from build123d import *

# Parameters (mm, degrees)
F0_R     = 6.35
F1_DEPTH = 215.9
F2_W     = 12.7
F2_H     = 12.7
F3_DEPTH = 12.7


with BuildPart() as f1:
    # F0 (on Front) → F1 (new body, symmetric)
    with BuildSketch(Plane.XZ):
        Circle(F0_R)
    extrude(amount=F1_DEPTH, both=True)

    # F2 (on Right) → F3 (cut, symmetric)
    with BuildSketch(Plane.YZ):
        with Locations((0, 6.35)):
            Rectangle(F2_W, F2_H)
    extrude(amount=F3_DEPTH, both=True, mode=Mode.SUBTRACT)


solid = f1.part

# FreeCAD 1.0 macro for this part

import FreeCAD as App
import Part
import Sketcher

V = App.Vector
Q = App.Units.Quantity

doc = App.newDocument("Part")
body = doc.addObject("PartDesign::Body", "Body")

# Sketch on XZ plane
sketch1 = body.newObject("Sketcher::SketchObject", "Sketch")
sketch1.AttachmentSupport = (doc.getObject("XZ_Plane"), [""])
sketch1.MapMode = "FlatFace"
sketch1.addGeometry(Part.Circle(V(0, 0, 0), V(0, 0, 1), 6.35), False)
sketch1.addConstraint([
    Sketcher.Constraint("Coincident", 0, 3, -1, 1),
    Sketcher.Constraint("Diameter", 0, Q("0.5 in")),
])
pad1 = body.newObject("PartDesign::Pad", "Pad")
pad1.Profile = sketch1
pad1.Length = Q("17 in")
pad1.Midplane = True

# Sketch on YZ plane
sketch2 = body.newObject("Sketcher::SketchObject", "Sketch001")
sketch2.AttachmentSupport = (doc.getObject("YZ_Plane"), [""])
sketch2.MapMode = "FlatFace"
sketch2.addGeometry([
    Part.LineSegment(V(-6.35, 12.7, 0), V(-6.35, 0, 0)),
    Part.LineSegment(V(-6.35, 0, 0), V(6.35, 0, 0)),
    Part.LineSegment(V(6.35, 0, 0), V(6.35, 12.7, 0)),
    Part.LineSegment(V(6.35, 12.7, 0), V(-6.35, 12.7, 0)),
], False)
sketch2.addConstraint([
    Sketcher.Constraint("Coincident", 0, 2, 1, 1),
    Sketcher.Constraint("Coincident", 1, 2, 2, 1),
    Sketcher.Constraint("Coincident", 2, 2, 3, 1),
    Sketcher.Constraint("Coincident", 3, 2, 0, 1),
    Sketcher.Constraint("Vertical", 0),
    Sketcher.Constraint("Horizontal", 1),
    Sketcher.Constraint("Vertical", 2),
    Sketcher.Constraint("Horizontal", 3),
    Sketcher.Constraint("Symmetric", 0, 2, 1, 2, -1, 1),
    Sketcher.Constraint("Equal", 3, 0),
    Sketcher.Constraint("DistanceX", 1, 1, 1, 2, Q("0.5 in")),
])
pocket1 = body.newObject("PartDesign::Pocket", "Pocket")
pocket1.Profile = sketch2
pocket1.Length = Q("1 in")
pocket1.Midplane = True

doc.recompute()
